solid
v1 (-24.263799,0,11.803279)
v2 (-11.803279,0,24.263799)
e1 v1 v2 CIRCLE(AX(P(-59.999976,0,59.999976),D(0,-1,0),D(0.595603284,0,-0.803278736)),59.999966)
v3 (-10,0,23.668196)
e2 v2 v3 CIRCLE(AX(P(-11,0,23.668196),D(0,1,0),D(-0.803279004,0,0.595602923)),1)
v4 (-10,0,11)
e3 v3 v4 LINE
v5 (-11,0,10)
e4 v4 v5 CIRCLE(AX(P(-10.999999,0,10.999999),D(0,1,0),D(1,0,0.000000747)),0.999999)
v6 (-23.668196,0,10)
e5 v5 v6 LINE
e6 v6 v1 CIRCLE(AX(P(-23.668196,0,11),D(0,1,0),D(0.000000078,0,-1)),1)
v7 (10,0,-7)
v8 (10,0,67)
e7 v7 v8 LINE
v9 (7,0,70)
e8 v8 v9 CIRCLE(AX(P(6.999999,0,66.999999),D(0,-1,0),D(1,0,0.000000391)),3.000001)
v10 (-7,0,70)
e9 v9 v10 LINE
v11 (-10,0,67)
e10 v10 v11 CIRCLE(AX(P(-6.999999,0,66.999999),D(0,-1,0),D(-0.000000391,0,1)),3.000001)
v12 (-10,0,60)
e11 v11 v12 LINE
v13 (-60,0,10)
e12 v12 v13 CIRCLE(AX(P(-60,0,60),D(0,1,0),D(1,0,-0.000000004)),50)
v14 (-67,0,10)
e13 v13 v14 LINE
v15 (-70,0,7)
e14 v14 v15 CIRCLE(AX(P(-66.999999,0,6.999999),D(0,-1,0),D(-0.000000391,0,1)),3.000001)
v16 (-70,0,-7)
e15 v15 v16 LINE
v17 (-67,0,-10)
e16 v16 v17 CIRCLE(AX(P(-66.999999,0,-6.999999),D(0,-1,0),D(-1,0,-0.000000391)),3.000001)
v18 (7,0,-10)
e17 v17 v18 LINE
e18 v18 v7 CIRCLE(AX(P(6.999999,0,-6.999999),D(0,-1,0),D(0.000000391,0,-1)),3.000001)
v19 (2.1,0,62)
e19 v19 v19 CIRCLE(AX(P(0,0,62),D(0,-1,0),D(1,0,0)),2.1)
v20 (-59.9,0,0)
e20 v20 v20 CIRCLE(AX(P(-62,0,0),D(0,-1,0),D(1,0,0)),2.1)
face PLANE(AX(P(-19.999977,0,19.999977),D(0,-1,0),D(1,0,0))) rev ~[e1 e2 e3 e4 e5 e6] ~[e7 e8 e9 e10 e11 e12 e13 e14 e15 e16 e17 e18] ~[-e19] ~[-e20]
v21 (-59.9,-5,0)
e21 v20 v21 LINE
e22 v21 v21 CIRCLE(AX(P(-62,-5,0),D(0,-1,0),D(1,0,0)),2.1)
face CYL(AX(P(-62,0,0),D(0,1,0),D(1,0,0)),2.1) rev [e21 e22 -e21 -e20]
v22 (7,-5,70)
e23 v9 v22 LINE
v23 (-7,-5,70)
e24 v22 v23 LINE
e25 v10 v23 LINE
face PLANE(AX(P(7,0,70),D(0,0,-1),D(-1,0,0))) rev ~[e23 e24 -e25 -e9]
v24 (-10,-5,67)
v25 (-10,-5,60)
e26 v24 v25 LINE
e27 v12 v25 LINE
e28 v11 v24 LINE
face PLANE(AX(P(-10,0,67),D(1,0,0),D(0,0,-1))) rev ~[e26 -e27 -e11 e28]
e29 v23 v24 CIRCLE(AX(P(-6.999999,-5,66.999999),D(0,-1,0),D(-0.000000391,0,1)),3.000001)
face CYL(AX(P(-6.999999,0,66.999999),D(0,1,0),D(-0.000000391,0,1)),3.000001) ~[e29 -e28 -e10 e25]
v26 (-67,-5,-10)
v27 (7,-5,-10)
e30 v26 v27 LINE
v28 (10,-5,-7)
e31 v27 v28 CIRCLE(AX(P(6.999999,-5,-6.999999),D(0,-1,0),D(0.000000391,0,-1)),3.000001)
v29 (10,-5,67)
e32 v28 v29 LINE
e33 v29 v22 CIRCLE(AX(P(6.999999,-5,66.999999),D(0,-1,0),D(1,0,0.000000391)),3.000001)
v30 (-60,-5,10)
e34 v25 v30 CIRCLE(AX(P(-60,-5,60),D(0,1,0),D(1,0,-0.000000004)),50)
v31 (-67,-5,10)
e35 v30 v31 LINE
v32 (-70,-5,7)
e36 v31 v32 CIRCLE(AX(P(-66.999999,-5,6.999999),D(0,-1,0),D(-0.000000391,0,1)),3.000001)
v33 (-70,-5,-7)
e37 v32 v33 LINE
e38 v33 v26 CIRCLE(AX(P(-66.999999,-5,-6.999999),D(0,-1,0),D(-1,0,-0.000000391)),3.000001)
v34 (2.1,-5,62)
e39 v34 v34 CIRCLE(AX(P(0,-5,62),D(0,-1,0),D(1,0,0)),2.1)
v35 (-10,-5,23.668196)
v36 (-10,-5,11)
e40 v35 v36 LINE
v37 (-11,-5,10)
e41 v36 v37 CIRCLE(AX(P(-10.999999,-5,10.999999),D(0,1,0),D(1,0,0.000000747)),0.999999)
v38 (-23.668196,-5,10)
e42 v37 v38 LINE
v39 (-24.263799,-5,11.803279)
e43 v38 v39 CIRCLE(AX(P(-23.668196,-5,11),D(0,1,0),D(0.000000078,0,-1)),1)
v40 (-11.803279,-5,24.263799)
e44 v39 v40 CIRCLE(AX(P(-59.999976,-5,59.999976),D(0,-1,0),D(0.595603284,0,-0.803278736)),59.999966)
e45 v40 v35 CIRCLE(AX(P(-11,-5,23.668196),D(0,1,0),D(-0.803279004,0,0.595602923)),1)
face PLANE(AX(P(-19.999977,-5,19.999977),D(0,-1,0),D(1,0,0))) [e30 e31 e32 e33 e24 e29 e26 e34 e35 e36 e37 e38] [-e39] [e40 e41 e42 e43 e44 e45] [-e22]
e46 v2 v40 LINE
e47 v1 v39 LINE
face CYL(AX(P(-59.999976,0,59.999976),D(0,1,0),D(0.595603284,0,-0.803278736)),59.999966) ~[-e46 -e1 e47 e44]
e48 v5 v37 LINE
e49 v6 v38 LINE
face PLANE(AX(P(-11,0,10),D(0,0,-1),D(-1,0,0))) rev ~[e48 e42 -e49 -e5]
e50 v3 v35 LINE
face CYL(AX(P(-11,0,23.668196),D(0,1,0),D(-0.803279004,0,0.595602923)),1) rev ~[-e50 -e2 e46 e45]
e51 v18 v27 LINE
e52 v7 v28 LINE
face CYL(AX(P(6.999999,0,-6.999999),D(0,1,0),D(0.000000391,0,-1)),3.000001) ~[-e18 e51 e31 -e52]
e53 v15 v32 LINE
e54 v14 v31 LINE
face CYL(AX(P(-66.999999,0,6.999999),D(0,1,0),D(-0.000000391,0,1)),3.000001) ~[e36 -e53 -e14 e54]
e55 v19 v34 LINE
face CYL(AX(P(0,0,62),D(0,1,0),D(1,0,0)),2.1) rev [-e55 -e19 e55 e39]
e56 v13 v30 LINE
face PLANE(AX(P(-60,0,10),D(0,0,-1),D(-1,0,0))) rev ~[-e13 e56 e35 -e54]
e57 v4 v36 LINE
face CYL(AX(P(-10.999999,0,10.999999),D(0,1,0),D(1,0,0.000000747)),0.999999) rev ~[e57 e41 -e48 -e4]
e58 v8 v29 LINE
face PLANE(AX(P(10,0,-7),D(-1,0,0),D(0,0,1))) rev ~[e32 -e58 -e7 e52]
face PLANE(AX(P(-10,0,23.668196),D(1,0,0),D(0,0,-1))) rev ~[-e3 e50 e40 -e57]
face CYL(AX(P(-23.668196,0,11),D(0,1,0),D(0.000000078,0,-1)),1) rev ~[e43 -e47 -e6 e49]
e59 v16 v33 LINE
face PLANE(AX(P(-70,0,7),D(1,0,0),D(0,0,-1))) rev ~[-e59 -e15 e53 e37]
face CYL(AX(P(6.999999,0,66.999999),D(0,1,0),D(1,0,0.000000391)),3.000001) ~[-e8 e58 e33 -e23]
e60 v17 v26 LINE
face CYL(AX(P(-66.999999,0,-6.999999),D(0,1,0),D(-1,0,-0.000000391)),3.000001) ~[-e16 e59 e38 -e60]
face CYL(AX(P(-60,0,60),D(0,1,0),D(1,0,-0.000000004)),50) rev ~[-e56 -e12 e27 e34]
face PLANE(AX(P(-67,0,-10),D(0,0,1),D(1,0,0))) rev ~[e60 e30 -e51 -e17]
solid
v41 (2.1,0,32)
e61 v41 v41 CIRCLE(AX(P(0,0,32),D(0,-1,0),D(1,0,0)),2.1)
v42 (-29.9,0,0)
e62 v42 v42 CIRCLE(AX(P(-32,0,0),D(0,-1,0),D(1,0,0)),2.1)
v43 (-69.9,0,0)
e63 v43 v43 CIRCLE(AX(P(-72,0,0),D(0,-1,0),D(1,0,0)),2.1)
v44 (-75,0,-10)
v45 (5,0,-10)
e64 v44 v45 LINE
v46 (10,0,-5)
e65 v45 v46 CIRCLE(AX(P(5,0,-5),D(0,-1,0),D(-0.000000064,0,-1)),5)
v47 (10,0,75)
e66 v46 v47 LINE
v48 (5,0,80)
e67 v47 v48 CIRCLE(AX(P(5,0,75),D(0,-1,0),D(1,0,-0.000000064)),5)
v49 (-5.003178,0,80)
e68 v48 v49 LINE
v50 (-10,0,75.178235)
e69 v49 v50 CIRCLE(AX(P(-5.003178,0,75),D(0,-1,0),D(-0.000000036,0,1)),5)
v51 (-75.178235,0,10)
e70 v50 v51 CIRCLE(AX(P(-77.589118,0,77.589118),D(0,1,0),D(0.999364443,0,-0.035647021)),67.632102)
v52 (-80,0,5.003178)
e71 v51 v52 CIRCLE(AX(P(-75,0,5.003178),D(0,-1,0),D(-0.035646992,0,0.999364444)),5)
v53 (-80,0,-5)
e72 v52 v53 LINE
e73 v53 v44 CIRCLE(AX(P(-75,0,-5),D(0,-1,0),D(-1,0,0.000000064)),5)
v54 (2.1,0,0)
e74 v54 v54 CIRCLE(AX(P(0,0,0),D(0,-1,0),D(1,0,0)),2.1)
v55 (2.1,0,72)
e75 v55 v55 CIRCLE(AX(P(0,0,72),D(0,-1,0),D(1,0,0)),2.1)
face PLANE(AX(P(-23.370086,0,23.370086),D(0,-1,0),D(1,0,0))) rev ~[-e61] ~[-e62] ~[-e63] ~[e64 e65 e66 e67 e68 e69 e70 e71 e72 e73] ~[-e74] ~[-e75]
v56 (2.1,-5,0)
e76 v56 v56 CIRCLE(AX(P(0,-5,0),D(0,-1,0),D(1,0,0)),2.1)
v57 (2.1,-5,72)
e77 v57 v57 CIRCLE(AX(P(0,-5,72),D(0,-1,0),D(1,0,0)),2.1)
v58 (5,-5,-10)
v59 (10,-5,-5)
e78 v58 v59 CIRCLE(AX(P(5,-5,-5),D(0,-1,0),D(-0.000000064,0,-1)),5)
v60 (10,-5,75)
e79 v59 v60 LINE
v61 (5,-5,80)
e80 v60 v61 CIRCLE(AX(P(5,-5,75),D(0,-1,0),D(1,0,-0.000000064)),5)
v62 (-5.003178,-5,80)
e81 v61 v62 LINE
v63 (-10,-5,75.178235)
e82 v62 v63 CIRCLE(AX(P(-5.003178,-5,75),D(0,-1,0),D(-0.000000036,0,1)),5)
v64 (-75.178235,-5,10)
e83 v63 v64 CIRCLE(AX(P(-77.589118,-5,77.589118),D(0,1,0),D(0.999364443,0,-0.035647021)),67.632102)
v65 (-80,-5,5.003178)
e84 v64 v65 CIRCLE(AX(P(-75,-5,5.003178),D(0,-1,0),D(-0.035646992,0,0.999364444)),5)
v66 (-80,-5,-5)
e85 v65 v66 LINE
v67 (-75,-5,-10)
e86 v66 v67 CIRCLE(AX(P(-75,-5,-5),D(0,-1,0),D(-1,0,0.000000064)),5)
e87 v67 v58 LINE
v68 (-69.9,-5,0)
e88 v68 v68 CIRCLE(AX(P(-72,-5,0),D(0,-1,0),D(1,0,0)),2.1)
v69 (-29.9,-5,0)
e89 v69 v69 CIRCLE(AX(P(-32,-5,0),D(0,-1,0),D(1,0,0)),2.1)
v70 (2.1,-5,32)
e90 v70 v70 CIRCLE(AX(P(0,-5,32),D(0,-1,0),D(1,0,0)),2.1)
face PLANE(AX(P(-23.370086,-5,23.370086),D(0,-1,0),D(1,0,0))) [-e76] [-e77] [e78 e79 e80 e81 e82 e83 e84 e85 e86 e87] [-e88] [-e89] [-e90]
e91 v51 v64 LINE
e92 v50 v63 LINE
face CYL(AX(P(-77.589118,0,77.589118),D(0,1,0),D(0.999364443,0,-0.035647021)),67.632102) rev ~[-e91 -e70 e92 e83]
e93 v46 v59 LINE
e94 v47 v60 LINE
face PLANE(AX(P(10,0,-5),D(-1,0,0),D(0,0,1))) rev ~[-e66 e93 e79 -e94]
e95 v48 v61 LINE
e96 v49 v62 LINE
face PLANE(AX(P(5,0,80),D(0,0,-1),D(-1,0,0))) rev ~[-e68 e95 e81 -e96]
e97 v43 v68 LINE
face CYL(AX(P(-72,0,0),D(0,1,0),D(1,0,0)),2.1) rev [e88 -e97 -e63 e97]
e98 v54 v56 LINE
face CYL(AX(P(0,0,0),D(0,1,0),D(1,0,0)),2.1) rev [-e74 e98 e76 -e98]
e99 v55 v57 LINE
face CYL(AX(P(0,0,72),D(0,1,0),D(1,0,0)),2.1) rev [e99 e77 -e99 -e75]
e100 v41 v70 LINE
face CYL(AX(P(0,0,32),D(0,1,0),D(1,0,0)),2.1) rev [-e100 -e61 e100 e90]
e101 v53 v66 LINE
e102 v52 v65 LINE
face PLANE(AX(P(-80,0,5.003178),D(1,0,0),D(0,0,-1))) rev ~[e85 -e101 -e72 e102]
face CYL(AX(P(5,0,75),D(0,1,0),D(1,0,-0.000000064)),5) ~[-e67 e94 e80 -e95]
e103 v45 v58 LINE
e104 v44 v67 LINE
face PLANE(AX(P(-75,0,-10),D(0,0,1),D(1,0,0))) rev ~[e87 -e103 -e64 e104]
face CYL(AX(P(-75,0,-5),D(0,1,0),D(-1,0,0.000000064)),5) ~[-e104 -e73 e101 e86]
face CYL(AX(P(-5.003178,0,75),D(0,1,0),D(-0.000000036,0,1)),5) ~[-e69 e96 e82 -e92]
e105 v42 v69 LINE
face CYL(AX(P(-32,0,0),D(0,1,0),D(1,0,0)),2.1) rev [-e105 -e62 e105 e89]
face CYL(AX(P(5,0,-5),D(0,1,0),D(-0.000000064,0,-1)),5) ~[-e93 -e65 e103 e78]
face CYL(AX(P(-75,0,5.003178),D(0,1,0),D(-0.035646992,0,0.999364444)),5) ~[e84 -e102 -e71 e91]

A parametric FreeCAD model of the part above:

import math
import FreeCAD as App
import Part
import Sketcher

V = App.Vector
Q = App.Units.Quantity

doc = App.newDocument("Part")
body = doc.addObject("PartDesign::Body", "Body")

# Sketch on XZ plane
sketch1 = body.newObject("Sketcher::SketchObject", "Sketch")
sketch1.AttachmentSupport = (doc.getObject("XZ_Plane"), [""])
sketch1.MapMode = "FlatFace"
sketch1.addGeometry(Part.ArcOfCircle(Part.Circle(V(-75, 5, 0), V(0, 0, 1), 5), math.radians(92), math.radians(180)), False)
sketch1.addGeometry(Part.LineSegment(V(-80, 5, 0), V(-80, -5, 0)), False)
sketch1.addGeometry(Part.ArcOfCircle(Part.Circle(V(-75, -5, 0), V(0, 0, 1), 5), math.radians(180), math.radians(270)), False)
sketch1.addGeometry(Part.LineSegment(V(-75, -10, 0), V(5, -10, 0)), False)
sketch1.addGeometry(Part.ArcOfCircle(Part.Circle(V(5, -5, 0), V(0, 0, 1), 5), math.radians(-90), math.radians(0)), False)
sketch1.addGeometry(Part.LineSegment(V(10, -5, 0), V(10, 75, 0)), False)
sketch1.addGeometry(Part.ArcOfCircle(Part.Circle(V(5, 75, 0), V(0, 0, 1), 5), math.radians(0), math.radians(90)), False)
sketch1.addGeometry(Part.LineSegment(V(5, 80, 0), V(-5, 80, 0)), False)
sketch1.addGeometry(Part.ArcOfCircle(Part.Circle(V(-5, 75, 0), V(0, 0, 1), 5), math.radians(90), math.radians(178)), False)
sketch1.addGeometry(Part.ArcOfCircle(Part.Circle(V(-77.6, 77.6, 0), V(0, 0, 1), 67.6), math.radians(-88), math.radians(-2)), False)
sketch1.addGeometry(Part.Circle(V(-72, 0, 0), V(0, 0, 1), 2.1), False)
sketch1.addGeometry(Part.Circle(V(-32, 0, 0), V(0, 0, 1), 2.1), False)
sketch1.addGeometry(Part.Circle(V(0, 0, 0), V(0, 0, 1), 2.1), False)
sketch1.addGeometry(Part.Circle(V(0, 32, 0), V(0, 0, 1), 2.1), False)
sketch1.addGeometry(Part.Circle(V(0, 72, 0), V(0, 0, 1), 2.1), False)
sketch1.addConstraint(Sketcher.Constraint("Tangent", 0, 2, 1, 1))
sketch1.addConstraint(Sketcher.Constraint("Tangent", 1, 2, 2, 1))
sketch1.addConstraint(Sketcher.Constraint("Tangent", 2, 2, 3, 1))
sketch1.addConstraint(Sketcher.Constraint("Tangent", 3, 2, 4, 1))
sketch1.addConstraint(Sketcher.Constraint("Tangent", 4, 2, 5, 1))
sketch1.addConstraint(Sketcher.Constraint("Tangent", 5, 2, 6, 1))
sketch1.addConstraint(Sketcher.Constraint("Tangent", 6, 2, 7, 1))
sketch1.addConstraint(Sketcher.Constraint("Tangent", 7, 2, 8, 1))
sketch1.addConstraint(Sketcher.Constraint("Tangent", 8, 2, 9, 2))
sketch1.addConstraint(Sketcher.Constraint("Tangent", 9, 1, 0, 1))
sketch1.addConstraint(Sketcher.Constraint("Vertical", 1))
sketch1.addConstraint(Sketcher.Constraint("Horizontal", 3))
sketch1.addConstraint(Sketcher.Constraint("Vertical", 5))
sketch1.addConstraint(Sketcher.Constraint("Horizontal", 7))
sketch1.addConstraint(Sketcher.Constraint("Coincident", 12, 3, -1, 1))
sketch1.addConstraint(Sketcher.Constraint("Equal", 0, 2))
sketch1.addConstraint(Sketcher.Constraint("Equal", 2, 4))
sketch1.addConstraint(Sketcher.Constraint("Equal", 4, 6))
sketch1.addConstraint(Sketcher.Constraint("Equal", 6, 8))
sketch1.addConstraint(Sketcher.Constraint("Equal", 10, 11))
sketch1.addConstraint(Sketcher.Constraint("Equal", 11, 12))
sketch1.addConstraint(Sketcher.Constraint("Equal", 12, 13))
sketch1.addConstraint(Sketcher.Constraint("Equal", 13, 14))
sketch1.addConstraint(Sketcher.Constraint("PointOnObject", 10, 3, -1))
sketch1.addConstraint(Sketcher.Constraint("PointOnObject", 11, 3, -1))
sketch1.addConstraint(Sketcher.Constraint("PointOnObject", 13, 3, -2))
sketch1.addConstraint(Sketcher.Constraint("PointOnObject", 14, 3, -2))
sketch1.addConstraint(Sketcher.Constraint("Equal", 7, 1))
sketch1.addConstraint(Sketcher.Constraint("Equal", 3, 5))
sketch1.addConstraint(Sketcher.Constraint("Radius", 0, Q("5 mm")))
sketch1.addConstraint(Sketcher.Constraint("Diameter", 10, Q("4.2 mm")))
sketch1.addConstraint(Sketcher.Constraint("DistanceX", 3, 1, 3, 2, Q("80 mm")))
sketch1.addConstraint(Sketcher.Constraint("DistanceX", 0, 3, -1, 1, Q("75 mm")))
sketch1.addConstraint(Sketcher.Constraint("DistanceY", 2, 3, -1, 1, Q("5 mm")))
sketch1.addConstraint(Sketcher.Constraint("DistanceX", 10, 3, -1, 1, Q("72 mm")))
sketch1.addConstraint(Sketcher.Constraint("DistanceX", 11, 3, -1, 1, Q("32 mm")))
sketch1.addConstraint(Sketcher.Constraint("DistanceY", -1, 1, 13, 3, Q("32 mm")))
sketch1.addConstraint(Sketcher.Constraint("DistanceY", -1, 1, 14, 3, Q("72 mm")))
sketch1.addConstraint(Sketcher.Constraint("DistanceX", 8, 2, -1, 1, Q("10 mm")))
sketch1.addConstraint(Sketcher.Constraint("Radius", 9, Q("67.632102 mm")))
pad1 = body.newObject("PartDesign::Pad", "Pad")
pad1.Profile = sketch1
pad1.Length = 5
body2 = doc.addObject("PartDesign::Body", "Body001")

# Sketch on XZ plane
sketch2 = body2.newObject("Sketcher::SketchObject", "Sketch001")
sketch2.AttachmentSupport = (doc.getObject("XZ_Plane001"), [""])
sketch2.MapMode = "FlatFace"
sketch2.addGeometry(Part.LineSegment(V(7, 70, 0), V(-7, 70, 0)), False)
sketch2.addGeometry(Part.ArcOfCircle(Part.Circle(V(-7, 67, 0), V(0, 0, 1), 3), math.radians(90), math.radians(180)), False)
sketch2.addGeometry(Part.LineSegment(V(-10, 67, 0), V(-10, 60, 0)), False)
sketch2.addGeometry(Part.ArcOfCircle(Part.Circle(V(-60, 60, 0), V(0, 0, 1), 50), math.radians(-90), math.radians(0)), False)
sketch2.addGeometry(Part.LineSegment(V(-60, 10, 0), V(-67, 10, 0)), False)
sketch2.addGeometry(Part.ArcOfCircle(Part.Circle(V(-67, 7, 0), V(0, 0, 1), 3), math.radians(90), math.radians(180)), False)
sketch2.addGeometry(Part.LineSegment(V(-70, 7, 0), V(-70, -7, 0)), False)
sketch2.addGeometry(Part.ArcOfCircle(Part.Circle(V(-67, -7, 0), V(0, 0, 1), 3), math.radians(-180), math.radians(-90)), False)
sketch2.addGeometry(Part.LineSegment(V(-67, -10, 0), V(7, -10, 0)), False)
sketch2.addGeometry(Part.ArcOfCircle(Part.Circle(V(7, -7, 0), V(0, 0, 1), 3), math.radians(-90), math.radians(0)), False)
sketch2.addGeometry(Part.LineSegment(V(10, -7, 0), V(10, 67, 0)), False)
sketch2.addGeometry(Part.ArcOfCircle(Part.Circle(V(7, 67, 0), V(0, 0, 1), 3), math.radians(0), math.radians(90)), False)
sketch2.addGeometry(Part.Circle(V(-62, 0, 0), V(0, 0, 1), 2.1), False)
sketch2.addGeometry(Part.LineSegment(V(-11, 10, 0), V(-23.7, 10, 0)), False)
sketch2.addGeometry(Part.ArcOfCircle(Part.Circle(V(-23.7, 11, 0), V(0, 0, 1), 1), math.radians(127), math.radians(270)), False)
sketch2.addGeometry(Part.ArcOfCircle(Part.Circle(V(-60, 60, 0), V(0, 0, 1), 60), math.radians(-53.44), math.radians(-36.56)), False)
sketch2.addGeometry(Part.ArcOfCircle(Part.Circle(V(-11, 23.7, 0), V(0, 0, 1), 1), math.radians(0), math.radians(143)), False)
sketch2.addGeometry(Part.LineSegment(V(-10, 23.7, 0), V(-10, 11, 0)), False)
sketch2.addGeometry(Part.ArcOfCircle(Part.Circle(V(-11, 11, 0), V(0, 0, 1), 1), math.radians(-90), math.radians(0)), False)
sketch2.addGeometry(Part.Circle(V(0, 62, 0), V(0, 0, 1), 2.1), False)
sketch2.addConstraint(Sketcher.Constraint("Tangent", 0, 2, 1, 1))
sketch2.addConstraint(Sketcher.Constraint("Tangent", 1, 2, 2, 1))
sketch2.addConstraint(Sketcher.Constraint("Tangent", 2, 2, 3, 2))
sketch2.addConstraint(Sketcher.Constraint("Tangent", 3, 1, 4, 1))
sketch2.addConstraint(Sketcher.Constraint("Tangent", 4, 2, 5, 1))
sketch2.addConstraint(Sketcher.Constraint("Tangent", 5, 2, 6, 1))
sketch2.addConstraint(Sketcher.Constraint("Tangent", 6, 2, 7, 1))
sketch2.addConstraint(Sketcher.Constraint("Tangent", 7, 2, 8, 1))
sketch2.addConstraint(Sketcher.Constraint("Tangent", 8, 2, 9, 1))
sketch2.addConstraint(Sketcher.Constraint("Tangent", 9, 2, 10, 1))
sketch2.addConstraint(Sketcher.Constraint("Tangent", 10, 2, 11, 1))
sketch2.addConstraint(Sketcher.Constraint("Tangent", 11, 2, 0, 1))
sketch2.addConstraint(Sketcher.Constraint("Tangent", 13, 2, 14, 2))
sketch2.addConstraint(Sketcher.Constraint("Tangent", 14, 1, 15, 1))
sketch2.addConstraint(Sketcher.Constraint("Tangent", 15, 2, 16, 2))
sketch2.addConstraint(Sketcher.Constraint("Tangent", 16, 1, 17, 1))
sketch2.addConstraint(Sketcher.Constraint("Tangent", 17, 2, 18, 2))
sketch2.addConstraint(Sketcher.Constraint("Tangent", 18, 1, 13, 1))
sketch2.addConstraint(Sketcher.Constraint("Horizontal", 0))
sketch2.addConstraint(Sketcher.Constraint("Vertical", 2))
sketch2.addConstraint(Sketcher.Constraint("Horizontal", 4))
sketch2.addConstraint(Sketcher.Constraint("Vertical", 6))
sketch2.addConstraint(Sketcher.Constraint("Horizontal", 8))
sketch2.addConstraint(Sketcher.Constraint("Vertical", 10))
sketch2.addConstraint(Sketcher.Constraint("Horizontal", 13))
sketch2.addConstraint(Sketcher.Constraint("Vertical", 17))
sketch2.addConstraint(Sketcher.Constraint("Equal", 1, 5))
sketch2.addConstraint(Sketcher.Constraint("Equal", 5, 7))
sketch2.addConstraint(Sketcher.Constraint("Equal", 7, 9))
sketch2.addConstraint(Sketcher.Constraint("Equal", 9, 11))
sketch2.addConstraint(Sketcher.Constraint("Equal", 14, 16))
sketch2.addConstraint(Sketcher.Constraint("Equal", 16, 18))
sketch2.addConstraint(Sketcher.Constraint("Equal", 12, 19))
sketch2.addConstraint(Sketcher.Constraint("PointOnObject", 12, 3, -1))
sketch2.addConstraint(Sketcher.Constraint("PointOnObject", 19, 3, -2))
sketch2.addConstraint(Sketcher.Constraint("Horizontal", 4, 2, 13, 2))
sketch2.addConstraint(Sketcher.Constraint("Vertical", 2, 2, 16, 1))
sketch2.addConstraint(Sketcher.Constraint("Equal", 4, 2))
sketch2.addConstraint(Sketcher.Constraint("Equal", 0, 6))
sketch2.addConstraint(Sketcher.Constraint("Equal", 13, 17))
sketch2.addConstraint(Sketcher.Constraint("Radius", 1, Q("3.000001 mm")))
sketch2.addConstraint(Sketcher.Constraint("Radius", 3, Q("50 mm")))
sketch2.addConstraint(Sketcher.Constraint("Radius", 14, Q("1 mm")))
sketch2.addConstraint(Sketcher.Constraint("Diameter", 12, Q("4.2 mm")))
sketch2.addConstraint(Sketcher.Constraint("DistanceX", 0, 2, 0, 1, Q("14 mm")))
sketch2.addConstraint(Sketcher.Constraint("DistanceX", 4, 2, 4, 1, Q("7 mm")))
sketch2.addConstraint(Sketcher.Constraint("DistanceX", 1, 3, -1, 1, Q("6.999999 mm")))
sketch2.addConstraint(Sketcher.Constraint("DistanceY", -1, 1, 1, 3, Q("66.999999 mm")))
sketch2.addConstraint(Sketcher.Constraint("DistanceX", 12, 3, -1, 1, Q("62 mm")))
sketch2.addConstraint(Sketcher.Constraint("DistanceY", -1, 1, 19, 3, Q("62 mm")))
sketch2.addConstraint(Sketcher.Constraint("Radius", 15, Q("59.999966 mm")))
sketch2.addConstraint(Sketcher.Constraint("DistanceX", 14, 1, -1, 1, Q("24.263799 mm")))
pad2 = body2.newObject("PartDesign::Pad", "Pad001")
pad2.Profile = sketch2
pad2.Length = 5

doc.recompute()
